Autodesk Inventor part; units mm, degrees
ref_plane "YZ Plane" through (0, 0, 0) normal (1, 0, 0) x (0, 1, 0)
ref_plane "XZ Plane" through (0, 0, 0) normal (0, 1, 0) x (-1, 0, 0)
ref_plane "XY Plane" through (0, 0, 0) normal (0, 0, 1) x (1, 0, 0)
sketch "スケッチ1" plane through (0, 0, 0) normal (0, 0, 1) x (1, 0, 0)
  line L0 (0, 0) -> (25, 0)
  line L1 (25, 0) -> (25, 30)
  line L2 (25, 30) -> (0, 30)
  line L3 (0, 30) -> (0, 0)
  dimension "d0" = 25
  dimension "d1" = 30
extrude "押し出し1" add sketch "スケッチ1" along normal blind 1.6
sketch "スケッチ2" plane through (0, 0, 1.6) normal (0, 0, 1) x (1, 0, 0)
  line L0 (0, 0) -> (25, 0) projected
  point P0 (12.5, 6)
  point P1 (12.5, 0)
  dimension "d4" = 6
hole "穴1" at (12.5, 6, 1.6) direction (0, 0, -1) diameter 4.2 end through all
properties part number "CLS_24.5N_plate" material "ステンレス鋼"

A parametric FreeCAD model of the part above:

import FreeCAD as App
import Part
import Sketcher
from FreeCAD import Vector

doc = App.newDocument("Part")
body = doc.addObject("PartDesign::Body", "Body")

# Sketch on XY plane
sketch1 = body.newObject("Sketcher::SketchObject", "Sketch")
sketch1.AttachmentSupport = (doc.getObject("XY_Plane"), [""])
sketch1.MapMode = "FlatFace"
sketch1.addGeometry([
    Part.LineSegment(Vector(0, 30, 0), Vector(0, 0, 0)),
    Part.LineSegment(Vector(0, 0, 0), Vector(25, 0, 0)),
    Part.LineSegment(Vector(25, 0, 0), Vector(25, 30, 0)),
    Part.LineSegment(Vector(25, 30, 0), Vector(0, 30, 0)),
], False)
sketch1.addConstraint([
    Sketcher.Constraint("Coincident", 0, 2, 1, 1),
    Sketcher.Constraint("Coincident", 1, 2, 2, 1),
    Sketcher.Constraint("Coincident", 2, 2, 3, 1),
    Sketcher.Constraint("Coincident", 3, 2, 0, 1),
    Sketcher.Constraint("Vertical", 0),
    Sketcher.Constraint("Horizontal", 1),
    Sketcher.Constraint("Vertical", 2),
    Sketcher.Constraint("Horizontal", 3),
    Sketcher.Constraint("Coincident", 0, 2, -1, 1),
    Sketcher.Constraint("DistanceX", 1, 1, 1, 2, 25.0),
    Sketcher.Constraint("DistanceY", 0, 2, 0, 1, 30.0),
])
pad1 = body.newObject("PartDesign::Pad", "Pad")
pad1.Profile = sketch1
pad1.Length = 1.6

# Sketch on XY plane
sketch2 = body.newObject("Sketcher::SketchObject", "Sketch001")
sketch2.AttachmentSupport = (doc.getObject("XY_Plane"), [""])
sketch2.MapMode = "FlatFace"
sketch2.AttachmentOffset = App.Placement(Vector(0, 0, 1.6), App.Rotation())
sketch2.addGeometry(Part.Circle(Vector(12.5, 6, 0), Vector(0, 0, 1), 2.1), False)
sketch2.addConstraint([
    Sketcher.Constraint("Diameter", 0, 4.2),
    Sketcher.Constraint("DistanceY", -1, 1, 0, 3, 6.0),
    Sketcher.Constraint("DistanceX", -1, 1, 0, 3, 12.5),
])
doc.recompute()
hole = body.newObject("PartDesign::Hole", "Hole")
hole.Profile = sketch2
hole.ThreadType = "None"
hole.Diameter = 4.2
hole.DepthType = "ThroughAll"

doc.recompute()
